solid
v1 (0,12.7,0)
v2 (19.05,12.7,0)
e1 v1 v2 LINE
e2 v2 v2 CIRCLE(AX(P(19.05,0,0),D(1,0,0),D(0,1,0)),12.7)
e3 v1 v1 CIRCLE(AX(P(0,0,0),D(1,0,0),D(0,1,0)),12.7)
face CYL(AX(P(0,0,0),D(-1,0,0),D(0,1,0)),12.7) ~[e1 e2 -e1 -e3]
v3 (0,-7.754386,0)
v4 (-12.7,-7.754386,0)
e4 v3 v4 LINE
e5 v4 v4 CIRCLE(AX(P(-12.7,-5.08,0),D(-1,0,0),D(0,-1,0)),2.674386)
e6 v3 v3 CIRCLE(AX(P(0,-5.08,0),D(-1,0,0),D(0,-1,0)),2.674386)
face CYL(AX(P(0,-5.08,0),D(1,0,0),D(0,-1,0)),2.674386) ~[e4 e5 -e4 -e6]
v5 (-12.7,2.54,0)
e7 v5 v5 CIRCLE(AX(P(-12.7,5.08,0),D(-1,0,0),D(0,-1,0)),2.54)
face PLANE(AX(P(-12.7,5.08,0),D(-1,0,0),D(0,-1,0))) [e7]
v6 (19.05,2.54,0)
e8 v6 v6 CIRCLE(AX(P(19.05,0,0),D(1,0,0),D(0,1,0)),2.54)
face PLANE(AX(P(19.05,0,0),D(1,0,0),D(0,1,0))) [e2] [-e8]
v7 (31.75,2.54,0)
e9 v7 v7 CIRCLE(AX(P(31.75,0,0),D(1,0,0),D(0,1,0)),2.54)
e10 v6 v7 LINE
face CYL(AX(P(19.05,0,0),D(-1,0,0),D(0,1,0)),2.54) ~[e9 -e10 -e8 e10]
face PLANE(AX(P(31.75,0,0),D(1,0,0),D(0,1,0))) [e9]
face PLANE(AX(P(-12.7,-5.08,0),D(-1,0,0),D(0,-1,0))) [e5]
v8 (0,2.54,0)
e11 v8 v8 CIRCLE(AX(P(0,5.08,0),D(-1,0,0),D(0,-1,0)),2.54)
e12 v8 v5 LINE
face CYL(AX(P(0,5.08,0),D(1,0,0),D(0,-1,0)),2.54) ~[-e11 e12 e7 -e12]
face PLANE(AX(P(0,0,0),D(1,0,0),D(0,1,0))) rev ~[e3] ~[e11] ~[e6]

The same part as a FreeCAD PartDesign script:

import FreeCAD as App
import Part
import Sketcher

V = App.Vector
Q = App.Units.Quantity

doc = App.newDocument("Part")
params = doc.addObject("Spreadsheet::Sheet", "Params")
for row, (alias, value) in enumerate([
    ("sketch1_diameter", "1 in"),
    ("pad1_length", "0.75 in"),
    ("sketch2_diameter", "0.2 in"),
    ("pad2_length", "0.5 in"),
    ("sketch3_diameter", "0.2 in"),
    ("pad3_length", "0.5 in"),
], start=1):
    params.set(f"A{row}", alias)
    params.set(f"B{row}", "=" + value)
    params.setAlias(f"B{row}", alias)

body = doc.addObject("PartDesign::Body", "Body")

sketch1 = body.newObject("Sketcher::SketchObject", "Sketch")
sketch1.AttachmentSupport = (doc.getObject("YZ_Plane"), [""])
sketch1.MapMode = "FlatFace"
sketch1.addGeometry(Part.Circle(V(0, 0, 0), V(0, 0, 1), 13), False)
sketch1.addConstraint([
    Sketcher.Constraint("Coincident", 0, 3, -1, 1),
    Sketcher.Constraint("Diameter", 0, Q("1 in")),
])
sketch1.setExpression("Constraints[1]", "Params.sketch1_diameter")
pad1 = body.newObject("PartDesign::Pad", "Pad")
pad1.Profile = sketch1
pad1.setExpression("Length", "Params.pad1_length")

sketch2 = body.newObject("Sketcher::SketchObject", "Sketch001")
sketch2.AttachmentSupport = (doc.getObject("YZ_Plane"), [""])
sketch2.MapMode = "FlatFace"
sketch2.AttachmentOffset = App.Placement(V(0, 0, 0.75 * 25.4), App.Rotation())
sketch2.addGeometry(Part.Circle(V(0, 0, 0), V(0, 0, 1), 2.5), False)
sketch2.addConstraint([
    Sketcher.Constraint("Coincident", 0, 3, -1, 1),
    Sketcher.Constraint("Diameter", 0, Q("0.2 in")),
])
sketch2.setExpression("Constraints[1]", "Params.sketch2_diameter")
pad2 = body.newObject("PartDesign::Pad", "Pad001")
pad2.Profile = sketch2
pad2.setExpression("Length", "Params.pad2_length")

sketch3 = body.newObject("Sketcher::SketchObject", "Sketch002")
sketch3.AttachmentSupport = (doc.getObject("YZ_Plane"), [""])
sketch3.MapMode = "FlatFace"
sketch3.addGeometry([
    Part.Circle(V(5.1, 0, 0), V(0, 0, 1), 2.5),
    Part.Circle(V(-5.1, 0, 0), V(0, 0, 1), 2.7),
], False)
sketch3.addConstraint([
    Sketcher.Constraint("Symmetric", 0, 3, 1, 3, -1, 1),
    Sketcher.Constraint("PointOnObject", 0, 3, -1),
    Sketcher.Constraint("Diameter", 0, Q("0.2 in")),
    Sketcher.Constraint("DistanceX", -1, 1, 0, 3, Q("0.2 in")),
    Sketcher.Constraint("Diameter", 1, Q("5.348772 mm")),
])
sketch3.setExpression("Constraints[2]", "Params.sketch3_diameter")
pad3 = body.newObject("PartDesign::Pad", "Pad002")
pad3.Profile = sketch3
pad3.setExpression("Length", "Params.pad3_length")
pad3.Reversed = True

doc.recompute()
